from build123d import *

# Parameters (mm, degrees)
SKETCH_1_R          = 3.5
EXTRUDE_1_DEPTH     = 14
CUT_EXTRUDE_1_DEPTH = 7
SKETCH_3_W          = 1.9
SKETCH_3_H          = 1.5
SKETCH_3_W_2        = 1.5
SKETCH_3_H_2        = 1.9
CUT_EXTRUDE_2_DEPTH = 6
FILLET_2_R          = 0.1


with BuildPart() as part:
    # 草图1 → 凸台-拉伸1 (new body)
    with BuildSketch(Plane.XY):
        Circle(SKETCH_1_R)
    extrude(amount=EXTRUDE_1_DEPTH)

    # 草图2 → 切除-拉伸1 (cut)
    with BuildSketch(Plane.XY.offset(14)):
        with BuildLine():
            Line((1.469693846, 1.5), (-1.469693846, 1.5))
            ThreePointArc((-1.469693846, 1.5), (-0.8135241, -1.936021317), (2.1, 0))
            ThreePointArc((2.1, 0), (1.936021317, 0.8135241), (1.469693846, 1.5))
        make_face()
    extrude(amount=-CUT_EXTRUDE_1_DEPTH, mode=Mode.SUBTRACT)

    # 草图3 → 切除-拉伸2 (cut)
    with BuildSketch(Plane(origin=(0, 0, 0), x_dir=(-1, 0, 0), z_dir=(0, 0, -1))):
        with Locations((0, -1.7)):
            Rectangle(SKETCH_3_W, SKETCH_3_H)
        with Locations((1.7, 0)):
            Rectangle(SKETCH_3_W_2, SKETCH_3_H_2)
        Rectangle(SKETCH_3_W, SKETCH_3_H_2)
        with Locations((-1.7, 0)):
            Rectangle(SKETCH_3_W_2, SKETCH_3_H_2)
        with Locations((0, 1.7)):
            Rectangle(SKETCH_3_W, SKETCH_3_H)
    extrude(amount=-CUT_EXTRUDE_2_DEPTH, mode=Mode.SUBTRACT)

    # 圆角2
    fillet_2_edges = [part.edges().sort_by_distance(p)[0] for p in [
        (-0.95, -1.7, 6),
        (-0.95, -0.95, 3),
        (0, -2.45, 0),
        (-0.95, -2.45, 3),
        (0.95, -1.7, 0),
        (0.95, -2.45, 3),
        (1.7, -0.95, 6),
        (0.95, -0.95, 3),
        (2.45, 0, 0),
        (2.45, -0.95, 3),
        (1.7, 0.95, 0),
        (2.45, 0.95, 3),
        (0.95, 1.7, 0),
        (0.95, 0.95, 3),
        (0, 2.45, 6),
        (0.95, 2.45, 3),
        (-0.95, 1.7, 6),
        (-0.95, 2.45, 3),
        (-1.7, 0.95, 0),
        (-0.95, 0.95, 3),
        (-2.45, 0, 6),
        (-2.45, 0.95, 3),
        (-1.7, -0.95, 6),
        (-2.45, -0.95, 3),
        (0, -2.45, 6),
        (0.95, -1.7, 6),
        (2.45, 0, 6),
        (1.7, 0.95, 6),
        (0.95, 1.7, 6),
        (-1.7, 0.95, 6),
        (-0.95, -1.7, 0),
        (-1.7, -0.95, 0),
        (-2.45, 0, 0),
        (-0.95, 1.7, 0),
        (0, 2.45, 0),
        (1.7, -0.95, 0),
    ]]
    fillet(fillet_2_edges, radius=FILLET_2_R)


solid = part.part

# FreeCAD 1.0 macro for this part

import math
import FreeCAD as App
import Part
import Sketcher
Q = App.Units.Quantity


def edges_at(feature, points):
    """Names of the edges that pass closest to the given points."""
    edges = feature.Shape.Edges
    near = lambda p: min(range(len(edges)), key=lambda i: edges[i].distToShape(Part.Vertex(*p))[0])
    return sorted({f"Edge{near(p) + 1}" for p in points})


def add_polygon(sketch, points):
    """Adds a closed chain of lines whose ends are joined by coincident constraints."""
    first, n = sketch.GeometryCount, len(points)
    for a, b in zip(points, points[1:] + points[:1]):
        sketch.addGeometry(Part.LineSegment(App.Vector(*a, 0), App.Vector(*b, 0)), False)
    for i in range(n):
        sketch.addConstraint(Sketcher.Constraint("Coincident", first + i, 2, first + (i + 1) % n, 1))

doc = App.newDocument("Part")
body = doc.addObject("PartDesign::Body", "Body")

# Sketch on XY plane
sketch1 = doc.addObject("Sketcher::SketchObject", "Sketch")
body.addObject(sketch1)
sketch1.AttachmentSupport = (doc.XY_Plane, [""])
sketch1.MapMode = "FlatFace"
sketch1.addGeometry(Part.Circle(App.Vector(0, 0, 0), App.Vector(0, 0, 1), 3.5), False)
sketch1.addConstraint([
    Sketcher.Constraint("Coincident", 0, 3, -1, 1),
    Sketcher.Constraint("Diameter", 0, Q("7 mm")),
])
pad1 = doc.addObject("PartDesign::Pad", "Pad")
body.addObject(pad1)
pad1.Profile = sketch1
pad1.Length = 14

# Sketch on XY plane
sketch2 = doc.addObject("Sketcher::SketchObject", "Sketch001")
body.addObject(sketch2)
sketch2.AttachmentSupport = (doc.XY_Plane, [""])
sketch2.MapMode = "FlatFace"
sketch2.AttachmentOffset = App.Placement(App.Vector(0, 0, 14), App.Rotation())
sketch2.addGeometry([
    Part.LineSegment(App.Vector(1.5, 1.5, 0), App.Vector(-1.5, 1.5, 0)),
    Part.ArcOfCircle(Part.Circle(App.Vector(0, 0, 0), App.Vector(0, 0, 1), 2.1), math.radians(134), math.radians(360)),
    Part.ArcOfCircle(Part.Circle(App.Vector(0, 0, 0), App.Vector(0, 0, 1), 2.1), math.radians(0), math.radians(46)),
], False)
sketch2.addConstraint([
    Sketcher.Constraint("Coincident", 0, 2, 1, 1),
    Sketcher.Constraint("Tangent", 1, 2, 2, 1),
    Sketcher.Constraint("Coincident", 2, 2, 0, 1),
    Sketcher.Constraint("Horizontal", 0),
    Sketcher.Constraint("Coincident", 1, 3, -1, 1),
    Sketcher.Constraint("Equal", 1, 2),
    Sketcher.Constraint("PointOnObject", 1, 2, -1),
    Sketcher.Constraint("Radius", 1, Q("2.1 mm")),
    Sketcher.Constraint("DistanceY", -1, 1, 0, 2, Q("1.5 mm")),
])
pocket1 = doc.addObject("PartDesign::Pocket", "Pocket")
body.addObject(pocket1)
pocket1.Profile = sketch2
pocket1.Length = 7

# Sketch on XY plane
sketch3 = doc.addObject("Sketcher::SketchObject", "Sketch002")
body.addObject(sketch3)
sketch3.AttachmentSupport = (doc.XY_Plane, [""])
sketch3.MapMode = "FlatFace"
add_polygon(sketch3, [(0.9, -2.5), (-0.9, -2.5), (-0.9, -0.9), (-2.5, -0.9), (-2.5, 0.9), (-0.9, 0.9), (-0.9, 2.5), (0.9, 2.5), (0.9, 0.9), (2.5, 0.9), (2.5, -0.9), (0.9, -0.9)])  # lines 0-11
sketch3.addConstraint([
    Sketcher.Constraint("Horizontal", 0),
    Sketcher.Constraint("Vertical", 1),
    Sketcher.Constraint("Horizontal", 2),
    Sketcher.Constraint("Vertical", 3),
    Sketcher.Constraint("Horizontal", 4),
    Sketcher.Constraint("Vertical", 5),
    Sketcher.Constraint("Horizontal", 6),
    Sketcher.Constraint("Vertical", 7),
    Sketcher.Constraint("Horizontal", 8),
    Sketcher.Constraint("Vertical", 9),
    Sketcher.Constraint("Horizontal", 10),
    Sketcher.Constraint("Vertical", 11),
    Sketcher.Constraint("Symmetric", 0, 2, 6, 2, -1, 1),
    Sketcher.Constraint("Symmetric", 2, 2, 8, 2, -1, 1),
    Sketcher.Constraint("Symmetric", 4, 2, 10, 2, -1, 1),
    Sketcher.Constraint("Symmetric", 4, 2, 7, 2, -2),
    Sketcher.Constraint("Equal", 10, 1),
    Sketcher.Constraint("Equal", 6, 3),
    Sketcher.Constraint("DistanceX", 0, 2, 0, 1, Q("1.9 mm")),
    Sketcher.Constraint("DistanceX", 2, 2, 2, 1, Q("1.5 mm")),
])
pocket2 = doc.addObject("PartDesign::Pocket", "Pocket001")
body.addObject(pocket2)
pocket2.Profile = sketch3
pocket2.Length = 6
pocket2.Reversed = True
doc.recompute()

fillet = doc.addObject("PartDesign::Fillet", "Fillet")
body.addObject(fillet)
fillet.Base = (pocket2, edges_at(pocket2, [
    (-0.95, -1.7, 6),
    (-0.95, -0.95, 3),
    (0, -2.45, 0),
    (-0.95, -2.45, 3),
    (0.95, -1.7, 0),
    (0.95, -2.45, 3),
    (1.7, -0.95, 6),
    (0.95, -0.95, 3),
    (2.45, 0, 0),
    (2.45, -0.95, 3),
    (1.7, 0.95, 0),
    (2.45, 0.95, 3),
    (0.95, 1.7, 0),
    (0.95, 0.95, 3),
    (0, 2.45, 6),
    (0.95, 2.45, 3),
    (-0.95, 1.7, 6),
    (-0.95, 2.45, 3),
    (-1.7, 0.95, 0),
    (-0.95, 0.95, 3),
    (-2.45, 0, 6),
    (-2.45, 0.95, 3),
    (-1.7, -0.95, 6),
    (-2.45, -0.95, 3),
    (0, -2.45, 6),
    (0.95, -1.7, 6),
    (2.45, 0, 6),
    (1.7, 0.95, 6),
    (0.95, 1.7, 6),
    (-1.7, 0.95, 6),
    (-0.95, -1.7, 0),
    (-1.7, -0.95, 0),
    (-2.45, 0, 0),
    (-0.95, 1.7, 0),
    (0, 2.45, 0),
    (1.7, -0.95, 0),
]))
fillet.Radius = 0.1

doc.recompute()
